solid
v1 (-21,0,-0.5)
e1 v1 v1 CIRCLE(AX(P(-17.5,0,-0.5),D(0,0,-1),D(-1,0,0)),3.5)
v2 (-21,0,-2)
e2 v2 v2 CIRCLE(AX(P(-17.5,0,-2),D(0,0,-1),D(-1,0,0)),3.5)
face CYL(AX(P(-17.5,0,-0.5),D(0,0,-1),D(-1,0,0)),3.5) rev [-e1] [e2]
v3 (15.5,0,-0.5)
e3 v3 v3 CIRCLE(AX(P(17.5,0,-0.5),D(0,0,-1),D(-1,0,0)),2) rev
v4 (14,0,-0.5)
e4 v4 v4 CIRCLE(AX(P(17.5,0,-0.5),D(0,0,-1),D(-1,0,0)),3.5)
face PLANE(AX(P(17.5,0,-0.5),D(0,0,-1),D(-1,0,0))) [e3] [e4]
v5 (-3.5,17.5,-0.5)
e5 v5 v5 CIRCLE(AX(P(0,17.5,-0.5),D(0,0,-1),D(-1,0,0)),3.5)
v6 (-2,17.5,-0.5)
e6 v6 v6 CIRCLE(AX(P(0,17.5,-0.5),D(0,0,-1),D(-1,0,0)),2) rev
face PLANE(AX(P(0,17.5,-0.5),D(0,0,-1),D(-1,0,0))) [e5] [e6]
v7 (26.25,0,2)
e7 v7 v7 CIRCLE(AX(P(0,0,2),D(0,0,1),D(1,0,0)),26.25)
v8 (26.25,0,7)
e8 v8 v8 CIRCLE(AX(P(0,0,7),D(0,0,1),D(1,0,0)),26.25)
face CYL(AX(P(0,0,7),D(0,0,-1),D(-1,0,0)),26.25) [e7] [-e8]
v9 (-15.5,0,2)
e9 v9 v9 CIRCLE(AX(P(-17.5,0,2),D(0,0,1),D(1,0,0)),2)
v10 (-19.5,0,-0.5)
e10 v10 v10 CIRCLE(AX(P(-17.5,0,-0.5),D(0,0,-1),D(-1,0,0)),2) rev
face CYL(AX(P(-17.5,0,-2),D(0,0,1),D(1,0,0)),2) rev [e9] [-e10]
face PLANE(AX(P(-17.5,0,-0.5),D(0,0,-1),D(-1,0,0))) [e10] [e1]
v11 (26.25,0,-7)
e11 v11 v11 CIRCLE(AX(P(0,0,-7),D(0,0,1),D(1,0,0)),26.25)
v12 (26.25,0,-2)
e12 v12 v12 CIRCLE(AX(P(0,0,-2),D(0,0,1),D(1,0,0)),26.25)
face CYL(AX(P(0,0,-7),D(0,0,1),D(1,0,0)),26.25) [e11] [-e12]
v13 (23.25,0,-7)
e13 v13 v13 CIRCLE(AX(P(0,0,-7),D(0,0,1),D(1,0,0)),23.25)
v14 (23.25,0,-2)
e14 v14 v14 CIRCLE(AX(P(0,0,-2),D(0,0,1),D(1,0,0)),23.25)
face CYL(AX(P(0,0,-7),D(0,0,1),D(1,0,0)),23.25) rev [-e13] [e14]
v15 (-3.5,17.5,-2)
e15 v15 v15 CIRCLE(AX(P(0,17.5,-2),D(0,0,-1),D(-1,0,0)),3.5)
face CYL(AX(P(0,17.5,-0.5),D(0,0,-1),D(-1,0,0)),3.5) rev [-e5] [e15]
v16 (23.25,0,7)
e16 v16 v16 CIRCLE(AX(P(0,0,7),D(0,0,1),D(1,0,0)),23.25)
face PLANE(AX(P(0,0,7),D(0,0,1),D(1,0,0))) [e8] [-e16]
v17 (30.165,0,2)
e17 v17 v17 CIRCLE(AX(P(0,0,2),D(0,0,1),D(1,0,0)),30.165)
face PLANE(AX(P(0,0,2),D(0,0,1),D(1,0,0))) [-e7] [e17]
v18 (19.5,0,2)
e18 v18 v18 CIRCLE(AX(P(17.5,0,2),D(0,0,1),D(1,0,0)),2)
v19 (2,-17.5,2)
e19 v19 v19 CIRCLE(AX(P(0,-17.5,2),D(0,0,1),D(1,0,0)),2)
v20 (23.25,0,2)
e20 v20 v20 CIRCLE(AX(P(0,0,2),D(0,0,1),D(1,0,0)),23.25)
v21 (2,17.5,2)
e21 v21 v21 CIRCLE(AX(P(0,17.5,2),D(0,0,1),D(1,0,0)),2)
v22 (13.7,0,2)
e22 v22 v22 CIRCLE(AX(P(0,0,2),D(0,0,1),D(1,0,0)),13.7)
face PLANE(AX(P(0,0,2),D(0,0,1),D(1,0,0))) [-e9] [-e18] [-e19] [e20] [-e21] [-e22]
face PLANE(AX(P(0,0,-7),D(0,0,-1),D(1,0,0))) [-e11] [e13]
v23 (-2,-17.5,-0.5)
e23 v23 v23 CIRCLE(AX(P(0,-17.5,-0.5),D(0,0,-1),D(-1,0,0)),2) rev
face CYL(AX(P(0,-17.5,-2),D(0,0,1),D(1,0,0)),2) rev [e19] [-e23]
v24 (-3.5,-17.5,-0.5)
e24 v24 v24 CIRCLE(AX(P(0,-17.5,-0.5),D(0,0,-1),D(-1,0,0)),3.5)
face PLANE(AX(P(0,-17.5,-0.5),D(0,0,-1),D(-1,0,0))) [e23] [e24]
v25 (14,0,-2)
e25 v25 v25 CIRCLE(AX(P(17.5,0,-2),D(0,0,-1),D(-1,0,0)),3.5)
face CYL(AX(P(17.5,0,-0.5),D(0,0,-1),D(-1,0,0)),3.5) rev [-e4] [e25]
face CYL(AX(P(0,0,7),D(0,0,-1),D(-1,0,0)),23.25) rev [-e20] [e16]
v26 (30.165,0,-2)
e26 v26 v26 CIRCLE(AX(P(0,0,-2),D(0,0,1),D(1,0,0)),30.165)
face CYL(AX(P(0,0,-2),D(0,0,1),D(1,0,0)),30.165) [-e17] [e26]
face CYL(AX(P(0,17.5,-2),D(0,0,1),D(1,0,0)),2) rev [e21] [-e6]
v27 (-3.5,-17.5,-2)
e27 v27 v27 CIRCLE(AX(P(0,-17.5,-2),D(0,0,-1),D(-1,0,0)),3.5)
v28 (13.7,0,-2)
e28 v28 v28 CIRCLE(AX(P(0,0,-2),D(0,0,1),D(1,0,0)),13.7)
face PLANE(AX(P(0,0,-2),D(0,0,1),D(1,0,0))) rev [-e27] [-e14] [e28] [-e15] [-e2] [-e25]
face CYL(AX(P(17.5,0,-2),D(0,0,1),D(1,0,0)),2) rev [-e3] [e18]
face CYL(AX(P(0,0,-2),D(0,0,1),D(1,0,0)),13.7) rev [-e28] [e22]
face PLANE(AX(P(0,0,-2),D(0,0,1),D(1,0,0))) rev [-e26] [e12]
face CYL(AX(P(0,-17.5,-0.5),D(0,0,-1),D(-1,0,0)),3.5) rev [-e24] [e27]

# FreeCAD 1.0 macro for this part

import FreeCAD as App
import Part
import Sketcher
from FreeCAD import Vector

doc = App.newDocument("Part")
body = doc.addObject("PartDesign::Body", "Body")

sketch1 = doc.addObject("Sketcher::SketchObject", "Sketch")
body.addObject(sketch1)
sketch1.AttachmentSupport = (doc.XY_Plane, [""])
sketch1.MapMode = "FlatFace"
sketch1.addGeometry(Part.Circle(Vector(0, 0, 0), Vector(0, 0, 1), 30.2), False)
sketch1.addGeometry(Part.Circle(Vector(0, -17.5, 0), Vector(0, 0, 1), 2), False)
sketch1.addGeometry(Part.Circle(Vector(-17.5, 0, 0), Vector(0, 0, 1), 2), False)
sketch1.addGeometry(Part.Circle(Vector(0, 0, 0), Vector(0, 0, 1), 13.7), False)
sketch1.addGeometry(Part.Circle(Vector(17.5, 0, 0), Vector(0, 0, 1), 2), False)
sketch1.addGeometry(Part.Circle(Vector(0, 17.5, 0), Vector(0, 0, 1), 2), False)
sketch1.addConstraint(Sketcher.Constraint("Coincident", 0, 3, -1, 1))
sketch1.addConstraint(Sketcher.Constraint("Coincident", 3, 3, -1, 1))
sketch1.addConstraint(Sketcher.Constraint("Equal", 1, 2))
sketch1.addConstraint(Sketcher.Constraint("Equal", 2, 4))
sketch1.addConstraint(Sketcher.Constraint("Equal", 4, 5))
sketch1.addConstraint(Sketcher.Constraint("Symmetric", 2, 3, 4, 3, -1, 1))
sketch1.addConstraint(Sketcher.Constraint("Symmetric", 1, 3, 5, 3, -1, 1))
sketch1.addConstraint(Sketcher.Constraint("PointOnObject", 1, 3, -2))
sketch1.addConstraint(Sketcher.Constraint("PointOnObject", 2, 3, -1))
sketch1.addConstraint(Sketcher.Constraint("Diameter", 1, 4.0))
sketch1.addConstraint(Sketcher.Constraint("Diameter", 3, 27.4))
sketch1.addConstraint(Sketcher.Constraint("Diameter", 0, 60.33))
sketch1.addConstraint(Sketcher.Constraint("DistanceX", 2, 3, 4, 3, 35.0))
sketch1.addConstraint(Sketcher.Constraint("DistanceY", 1, 3, 5, 3, 35.0))
pad1 = doc.addObject("PartDesign::Pad", "Pad")
body.addObject(pad1)
pad1.Profile = sketch1
pad1.Type = "TwoLengths"
pad1.Length = 2
pad1.Length2 = 2

sketch2 = doc.addObject("Sketcher::SketchObject", "Sketch001")
body.addObject(sketch2)
sketch2.AttachmentSupport = (doc.XY_Plane, [""])
sketch2.MapMode = "FlatFace"
sketch2.AttachmentOffset = App.Placement(Vector(0, 0, 2), App.Rotation())
sketch2.addGeometry(Part.Circle(Vector(0, 0, 0), Vector(0, 0, 1), 26), False)
sketch2.addGeometry(Part.Circle(Vector(0, 0, 0), Vector(0, 0, 1), 23), False)
sketch2.addConstraint(Sketcher.Constraint("Coincident", 0, 3, -1, 1))
sketch2.addConstraint(Sketcher.Constraint("Coincident", 1, 3, -1, 1))
sketch2.addConstraint(Sketcher.Constraint("Diameter", 0, 52.5))
sketch2.addConstraint(Sketcher.Constraint("Diameter", 1, 46.5))
pad2 = doc.addObject("PartDesign::Pad", "Pad001")
body.addObject(pad2)
pad2.Profile = sketch2
pad2.Length = 5

sketch3 = doc.addObject("Sketcher::SketchObject", "Sketch002")
body.addObject(sketch3)
sketch3.AttachmentSupport = (doc.XY_Plane, [""])
sketch3.MapMode = "FlatFace"
sketch3.AttachmentOffset = App.Placement(Vector(0, 0, -2), App.Rotation())
sketch3.addGeometry(Part.Circle(Vector(0, 17.5, 0), Vector(0, 0, 1), 3.5), False)
sketch3.addGeometry(Part.Circle(Vector(-17.5, 0, 0), Vector(0, 0, 1), 3.5), False)
sketch3.addGeometry(Part.Circle(Vector(17.5, 0, 0), Vector(0, 0, 1), 3.5), False)
sketch3.addGeometry(Part.Circle(Vector(0, -17.5, 0), Vector(0, 0, 1), 3.5), False)
sketch3.addConstraint(Sketcher.Constraint("Equal", 0, 1))
sketch3.addConstraint(Sketcher.Constraint("Equal", 1, 2))
sketch3.addConstraint(Sketcher.Constraint("Equal", 2, 3))
sketch3.addConstraint(Sketcher.Constraint("Symmetric", 1, 3, 2, 3, -1, 1))
sketch3.addConstraint(Sketcher.Constraint("Symmetric", 0, 3, 3, 3, -1, 1))
sketch3.addConstraint(Sketcher.Constraint("PointOnObject", 0, 3, -2))
sketch3.addConstraint(Sketcher.Constraint("PointOnObject", 1, 3, -1))
sketch3.addConstraint(Sketcher.Constraint("Diameter", 0, 7.0))
sketch3.addConstraint(Sketcher.Constraint("DistanceX", 1, 3, 2, 3, 35.0))
sketch3.addConstraint(Sketcher.Constraint("DistanceY", 3, 3, 0, 3, 35.0))
pocket1 = doc.addObject("PartDesign::Pocket", "Pocket")
body.addObject(pocket1)
pocket1.Profile = sketch3
pocket1.Length = 1.5
pocket1.Reversed = True
doc.recompute()

mirrored = doc.addObject("PartDesign::Mirrored", "Mirrored")
body.addObject(mirrored)
mirrored.Originals = [pad2]
mirrored.MirrorPlane = (doc.XY_Plane, [""])
body.Tip = mirrored

doc.recompute()
